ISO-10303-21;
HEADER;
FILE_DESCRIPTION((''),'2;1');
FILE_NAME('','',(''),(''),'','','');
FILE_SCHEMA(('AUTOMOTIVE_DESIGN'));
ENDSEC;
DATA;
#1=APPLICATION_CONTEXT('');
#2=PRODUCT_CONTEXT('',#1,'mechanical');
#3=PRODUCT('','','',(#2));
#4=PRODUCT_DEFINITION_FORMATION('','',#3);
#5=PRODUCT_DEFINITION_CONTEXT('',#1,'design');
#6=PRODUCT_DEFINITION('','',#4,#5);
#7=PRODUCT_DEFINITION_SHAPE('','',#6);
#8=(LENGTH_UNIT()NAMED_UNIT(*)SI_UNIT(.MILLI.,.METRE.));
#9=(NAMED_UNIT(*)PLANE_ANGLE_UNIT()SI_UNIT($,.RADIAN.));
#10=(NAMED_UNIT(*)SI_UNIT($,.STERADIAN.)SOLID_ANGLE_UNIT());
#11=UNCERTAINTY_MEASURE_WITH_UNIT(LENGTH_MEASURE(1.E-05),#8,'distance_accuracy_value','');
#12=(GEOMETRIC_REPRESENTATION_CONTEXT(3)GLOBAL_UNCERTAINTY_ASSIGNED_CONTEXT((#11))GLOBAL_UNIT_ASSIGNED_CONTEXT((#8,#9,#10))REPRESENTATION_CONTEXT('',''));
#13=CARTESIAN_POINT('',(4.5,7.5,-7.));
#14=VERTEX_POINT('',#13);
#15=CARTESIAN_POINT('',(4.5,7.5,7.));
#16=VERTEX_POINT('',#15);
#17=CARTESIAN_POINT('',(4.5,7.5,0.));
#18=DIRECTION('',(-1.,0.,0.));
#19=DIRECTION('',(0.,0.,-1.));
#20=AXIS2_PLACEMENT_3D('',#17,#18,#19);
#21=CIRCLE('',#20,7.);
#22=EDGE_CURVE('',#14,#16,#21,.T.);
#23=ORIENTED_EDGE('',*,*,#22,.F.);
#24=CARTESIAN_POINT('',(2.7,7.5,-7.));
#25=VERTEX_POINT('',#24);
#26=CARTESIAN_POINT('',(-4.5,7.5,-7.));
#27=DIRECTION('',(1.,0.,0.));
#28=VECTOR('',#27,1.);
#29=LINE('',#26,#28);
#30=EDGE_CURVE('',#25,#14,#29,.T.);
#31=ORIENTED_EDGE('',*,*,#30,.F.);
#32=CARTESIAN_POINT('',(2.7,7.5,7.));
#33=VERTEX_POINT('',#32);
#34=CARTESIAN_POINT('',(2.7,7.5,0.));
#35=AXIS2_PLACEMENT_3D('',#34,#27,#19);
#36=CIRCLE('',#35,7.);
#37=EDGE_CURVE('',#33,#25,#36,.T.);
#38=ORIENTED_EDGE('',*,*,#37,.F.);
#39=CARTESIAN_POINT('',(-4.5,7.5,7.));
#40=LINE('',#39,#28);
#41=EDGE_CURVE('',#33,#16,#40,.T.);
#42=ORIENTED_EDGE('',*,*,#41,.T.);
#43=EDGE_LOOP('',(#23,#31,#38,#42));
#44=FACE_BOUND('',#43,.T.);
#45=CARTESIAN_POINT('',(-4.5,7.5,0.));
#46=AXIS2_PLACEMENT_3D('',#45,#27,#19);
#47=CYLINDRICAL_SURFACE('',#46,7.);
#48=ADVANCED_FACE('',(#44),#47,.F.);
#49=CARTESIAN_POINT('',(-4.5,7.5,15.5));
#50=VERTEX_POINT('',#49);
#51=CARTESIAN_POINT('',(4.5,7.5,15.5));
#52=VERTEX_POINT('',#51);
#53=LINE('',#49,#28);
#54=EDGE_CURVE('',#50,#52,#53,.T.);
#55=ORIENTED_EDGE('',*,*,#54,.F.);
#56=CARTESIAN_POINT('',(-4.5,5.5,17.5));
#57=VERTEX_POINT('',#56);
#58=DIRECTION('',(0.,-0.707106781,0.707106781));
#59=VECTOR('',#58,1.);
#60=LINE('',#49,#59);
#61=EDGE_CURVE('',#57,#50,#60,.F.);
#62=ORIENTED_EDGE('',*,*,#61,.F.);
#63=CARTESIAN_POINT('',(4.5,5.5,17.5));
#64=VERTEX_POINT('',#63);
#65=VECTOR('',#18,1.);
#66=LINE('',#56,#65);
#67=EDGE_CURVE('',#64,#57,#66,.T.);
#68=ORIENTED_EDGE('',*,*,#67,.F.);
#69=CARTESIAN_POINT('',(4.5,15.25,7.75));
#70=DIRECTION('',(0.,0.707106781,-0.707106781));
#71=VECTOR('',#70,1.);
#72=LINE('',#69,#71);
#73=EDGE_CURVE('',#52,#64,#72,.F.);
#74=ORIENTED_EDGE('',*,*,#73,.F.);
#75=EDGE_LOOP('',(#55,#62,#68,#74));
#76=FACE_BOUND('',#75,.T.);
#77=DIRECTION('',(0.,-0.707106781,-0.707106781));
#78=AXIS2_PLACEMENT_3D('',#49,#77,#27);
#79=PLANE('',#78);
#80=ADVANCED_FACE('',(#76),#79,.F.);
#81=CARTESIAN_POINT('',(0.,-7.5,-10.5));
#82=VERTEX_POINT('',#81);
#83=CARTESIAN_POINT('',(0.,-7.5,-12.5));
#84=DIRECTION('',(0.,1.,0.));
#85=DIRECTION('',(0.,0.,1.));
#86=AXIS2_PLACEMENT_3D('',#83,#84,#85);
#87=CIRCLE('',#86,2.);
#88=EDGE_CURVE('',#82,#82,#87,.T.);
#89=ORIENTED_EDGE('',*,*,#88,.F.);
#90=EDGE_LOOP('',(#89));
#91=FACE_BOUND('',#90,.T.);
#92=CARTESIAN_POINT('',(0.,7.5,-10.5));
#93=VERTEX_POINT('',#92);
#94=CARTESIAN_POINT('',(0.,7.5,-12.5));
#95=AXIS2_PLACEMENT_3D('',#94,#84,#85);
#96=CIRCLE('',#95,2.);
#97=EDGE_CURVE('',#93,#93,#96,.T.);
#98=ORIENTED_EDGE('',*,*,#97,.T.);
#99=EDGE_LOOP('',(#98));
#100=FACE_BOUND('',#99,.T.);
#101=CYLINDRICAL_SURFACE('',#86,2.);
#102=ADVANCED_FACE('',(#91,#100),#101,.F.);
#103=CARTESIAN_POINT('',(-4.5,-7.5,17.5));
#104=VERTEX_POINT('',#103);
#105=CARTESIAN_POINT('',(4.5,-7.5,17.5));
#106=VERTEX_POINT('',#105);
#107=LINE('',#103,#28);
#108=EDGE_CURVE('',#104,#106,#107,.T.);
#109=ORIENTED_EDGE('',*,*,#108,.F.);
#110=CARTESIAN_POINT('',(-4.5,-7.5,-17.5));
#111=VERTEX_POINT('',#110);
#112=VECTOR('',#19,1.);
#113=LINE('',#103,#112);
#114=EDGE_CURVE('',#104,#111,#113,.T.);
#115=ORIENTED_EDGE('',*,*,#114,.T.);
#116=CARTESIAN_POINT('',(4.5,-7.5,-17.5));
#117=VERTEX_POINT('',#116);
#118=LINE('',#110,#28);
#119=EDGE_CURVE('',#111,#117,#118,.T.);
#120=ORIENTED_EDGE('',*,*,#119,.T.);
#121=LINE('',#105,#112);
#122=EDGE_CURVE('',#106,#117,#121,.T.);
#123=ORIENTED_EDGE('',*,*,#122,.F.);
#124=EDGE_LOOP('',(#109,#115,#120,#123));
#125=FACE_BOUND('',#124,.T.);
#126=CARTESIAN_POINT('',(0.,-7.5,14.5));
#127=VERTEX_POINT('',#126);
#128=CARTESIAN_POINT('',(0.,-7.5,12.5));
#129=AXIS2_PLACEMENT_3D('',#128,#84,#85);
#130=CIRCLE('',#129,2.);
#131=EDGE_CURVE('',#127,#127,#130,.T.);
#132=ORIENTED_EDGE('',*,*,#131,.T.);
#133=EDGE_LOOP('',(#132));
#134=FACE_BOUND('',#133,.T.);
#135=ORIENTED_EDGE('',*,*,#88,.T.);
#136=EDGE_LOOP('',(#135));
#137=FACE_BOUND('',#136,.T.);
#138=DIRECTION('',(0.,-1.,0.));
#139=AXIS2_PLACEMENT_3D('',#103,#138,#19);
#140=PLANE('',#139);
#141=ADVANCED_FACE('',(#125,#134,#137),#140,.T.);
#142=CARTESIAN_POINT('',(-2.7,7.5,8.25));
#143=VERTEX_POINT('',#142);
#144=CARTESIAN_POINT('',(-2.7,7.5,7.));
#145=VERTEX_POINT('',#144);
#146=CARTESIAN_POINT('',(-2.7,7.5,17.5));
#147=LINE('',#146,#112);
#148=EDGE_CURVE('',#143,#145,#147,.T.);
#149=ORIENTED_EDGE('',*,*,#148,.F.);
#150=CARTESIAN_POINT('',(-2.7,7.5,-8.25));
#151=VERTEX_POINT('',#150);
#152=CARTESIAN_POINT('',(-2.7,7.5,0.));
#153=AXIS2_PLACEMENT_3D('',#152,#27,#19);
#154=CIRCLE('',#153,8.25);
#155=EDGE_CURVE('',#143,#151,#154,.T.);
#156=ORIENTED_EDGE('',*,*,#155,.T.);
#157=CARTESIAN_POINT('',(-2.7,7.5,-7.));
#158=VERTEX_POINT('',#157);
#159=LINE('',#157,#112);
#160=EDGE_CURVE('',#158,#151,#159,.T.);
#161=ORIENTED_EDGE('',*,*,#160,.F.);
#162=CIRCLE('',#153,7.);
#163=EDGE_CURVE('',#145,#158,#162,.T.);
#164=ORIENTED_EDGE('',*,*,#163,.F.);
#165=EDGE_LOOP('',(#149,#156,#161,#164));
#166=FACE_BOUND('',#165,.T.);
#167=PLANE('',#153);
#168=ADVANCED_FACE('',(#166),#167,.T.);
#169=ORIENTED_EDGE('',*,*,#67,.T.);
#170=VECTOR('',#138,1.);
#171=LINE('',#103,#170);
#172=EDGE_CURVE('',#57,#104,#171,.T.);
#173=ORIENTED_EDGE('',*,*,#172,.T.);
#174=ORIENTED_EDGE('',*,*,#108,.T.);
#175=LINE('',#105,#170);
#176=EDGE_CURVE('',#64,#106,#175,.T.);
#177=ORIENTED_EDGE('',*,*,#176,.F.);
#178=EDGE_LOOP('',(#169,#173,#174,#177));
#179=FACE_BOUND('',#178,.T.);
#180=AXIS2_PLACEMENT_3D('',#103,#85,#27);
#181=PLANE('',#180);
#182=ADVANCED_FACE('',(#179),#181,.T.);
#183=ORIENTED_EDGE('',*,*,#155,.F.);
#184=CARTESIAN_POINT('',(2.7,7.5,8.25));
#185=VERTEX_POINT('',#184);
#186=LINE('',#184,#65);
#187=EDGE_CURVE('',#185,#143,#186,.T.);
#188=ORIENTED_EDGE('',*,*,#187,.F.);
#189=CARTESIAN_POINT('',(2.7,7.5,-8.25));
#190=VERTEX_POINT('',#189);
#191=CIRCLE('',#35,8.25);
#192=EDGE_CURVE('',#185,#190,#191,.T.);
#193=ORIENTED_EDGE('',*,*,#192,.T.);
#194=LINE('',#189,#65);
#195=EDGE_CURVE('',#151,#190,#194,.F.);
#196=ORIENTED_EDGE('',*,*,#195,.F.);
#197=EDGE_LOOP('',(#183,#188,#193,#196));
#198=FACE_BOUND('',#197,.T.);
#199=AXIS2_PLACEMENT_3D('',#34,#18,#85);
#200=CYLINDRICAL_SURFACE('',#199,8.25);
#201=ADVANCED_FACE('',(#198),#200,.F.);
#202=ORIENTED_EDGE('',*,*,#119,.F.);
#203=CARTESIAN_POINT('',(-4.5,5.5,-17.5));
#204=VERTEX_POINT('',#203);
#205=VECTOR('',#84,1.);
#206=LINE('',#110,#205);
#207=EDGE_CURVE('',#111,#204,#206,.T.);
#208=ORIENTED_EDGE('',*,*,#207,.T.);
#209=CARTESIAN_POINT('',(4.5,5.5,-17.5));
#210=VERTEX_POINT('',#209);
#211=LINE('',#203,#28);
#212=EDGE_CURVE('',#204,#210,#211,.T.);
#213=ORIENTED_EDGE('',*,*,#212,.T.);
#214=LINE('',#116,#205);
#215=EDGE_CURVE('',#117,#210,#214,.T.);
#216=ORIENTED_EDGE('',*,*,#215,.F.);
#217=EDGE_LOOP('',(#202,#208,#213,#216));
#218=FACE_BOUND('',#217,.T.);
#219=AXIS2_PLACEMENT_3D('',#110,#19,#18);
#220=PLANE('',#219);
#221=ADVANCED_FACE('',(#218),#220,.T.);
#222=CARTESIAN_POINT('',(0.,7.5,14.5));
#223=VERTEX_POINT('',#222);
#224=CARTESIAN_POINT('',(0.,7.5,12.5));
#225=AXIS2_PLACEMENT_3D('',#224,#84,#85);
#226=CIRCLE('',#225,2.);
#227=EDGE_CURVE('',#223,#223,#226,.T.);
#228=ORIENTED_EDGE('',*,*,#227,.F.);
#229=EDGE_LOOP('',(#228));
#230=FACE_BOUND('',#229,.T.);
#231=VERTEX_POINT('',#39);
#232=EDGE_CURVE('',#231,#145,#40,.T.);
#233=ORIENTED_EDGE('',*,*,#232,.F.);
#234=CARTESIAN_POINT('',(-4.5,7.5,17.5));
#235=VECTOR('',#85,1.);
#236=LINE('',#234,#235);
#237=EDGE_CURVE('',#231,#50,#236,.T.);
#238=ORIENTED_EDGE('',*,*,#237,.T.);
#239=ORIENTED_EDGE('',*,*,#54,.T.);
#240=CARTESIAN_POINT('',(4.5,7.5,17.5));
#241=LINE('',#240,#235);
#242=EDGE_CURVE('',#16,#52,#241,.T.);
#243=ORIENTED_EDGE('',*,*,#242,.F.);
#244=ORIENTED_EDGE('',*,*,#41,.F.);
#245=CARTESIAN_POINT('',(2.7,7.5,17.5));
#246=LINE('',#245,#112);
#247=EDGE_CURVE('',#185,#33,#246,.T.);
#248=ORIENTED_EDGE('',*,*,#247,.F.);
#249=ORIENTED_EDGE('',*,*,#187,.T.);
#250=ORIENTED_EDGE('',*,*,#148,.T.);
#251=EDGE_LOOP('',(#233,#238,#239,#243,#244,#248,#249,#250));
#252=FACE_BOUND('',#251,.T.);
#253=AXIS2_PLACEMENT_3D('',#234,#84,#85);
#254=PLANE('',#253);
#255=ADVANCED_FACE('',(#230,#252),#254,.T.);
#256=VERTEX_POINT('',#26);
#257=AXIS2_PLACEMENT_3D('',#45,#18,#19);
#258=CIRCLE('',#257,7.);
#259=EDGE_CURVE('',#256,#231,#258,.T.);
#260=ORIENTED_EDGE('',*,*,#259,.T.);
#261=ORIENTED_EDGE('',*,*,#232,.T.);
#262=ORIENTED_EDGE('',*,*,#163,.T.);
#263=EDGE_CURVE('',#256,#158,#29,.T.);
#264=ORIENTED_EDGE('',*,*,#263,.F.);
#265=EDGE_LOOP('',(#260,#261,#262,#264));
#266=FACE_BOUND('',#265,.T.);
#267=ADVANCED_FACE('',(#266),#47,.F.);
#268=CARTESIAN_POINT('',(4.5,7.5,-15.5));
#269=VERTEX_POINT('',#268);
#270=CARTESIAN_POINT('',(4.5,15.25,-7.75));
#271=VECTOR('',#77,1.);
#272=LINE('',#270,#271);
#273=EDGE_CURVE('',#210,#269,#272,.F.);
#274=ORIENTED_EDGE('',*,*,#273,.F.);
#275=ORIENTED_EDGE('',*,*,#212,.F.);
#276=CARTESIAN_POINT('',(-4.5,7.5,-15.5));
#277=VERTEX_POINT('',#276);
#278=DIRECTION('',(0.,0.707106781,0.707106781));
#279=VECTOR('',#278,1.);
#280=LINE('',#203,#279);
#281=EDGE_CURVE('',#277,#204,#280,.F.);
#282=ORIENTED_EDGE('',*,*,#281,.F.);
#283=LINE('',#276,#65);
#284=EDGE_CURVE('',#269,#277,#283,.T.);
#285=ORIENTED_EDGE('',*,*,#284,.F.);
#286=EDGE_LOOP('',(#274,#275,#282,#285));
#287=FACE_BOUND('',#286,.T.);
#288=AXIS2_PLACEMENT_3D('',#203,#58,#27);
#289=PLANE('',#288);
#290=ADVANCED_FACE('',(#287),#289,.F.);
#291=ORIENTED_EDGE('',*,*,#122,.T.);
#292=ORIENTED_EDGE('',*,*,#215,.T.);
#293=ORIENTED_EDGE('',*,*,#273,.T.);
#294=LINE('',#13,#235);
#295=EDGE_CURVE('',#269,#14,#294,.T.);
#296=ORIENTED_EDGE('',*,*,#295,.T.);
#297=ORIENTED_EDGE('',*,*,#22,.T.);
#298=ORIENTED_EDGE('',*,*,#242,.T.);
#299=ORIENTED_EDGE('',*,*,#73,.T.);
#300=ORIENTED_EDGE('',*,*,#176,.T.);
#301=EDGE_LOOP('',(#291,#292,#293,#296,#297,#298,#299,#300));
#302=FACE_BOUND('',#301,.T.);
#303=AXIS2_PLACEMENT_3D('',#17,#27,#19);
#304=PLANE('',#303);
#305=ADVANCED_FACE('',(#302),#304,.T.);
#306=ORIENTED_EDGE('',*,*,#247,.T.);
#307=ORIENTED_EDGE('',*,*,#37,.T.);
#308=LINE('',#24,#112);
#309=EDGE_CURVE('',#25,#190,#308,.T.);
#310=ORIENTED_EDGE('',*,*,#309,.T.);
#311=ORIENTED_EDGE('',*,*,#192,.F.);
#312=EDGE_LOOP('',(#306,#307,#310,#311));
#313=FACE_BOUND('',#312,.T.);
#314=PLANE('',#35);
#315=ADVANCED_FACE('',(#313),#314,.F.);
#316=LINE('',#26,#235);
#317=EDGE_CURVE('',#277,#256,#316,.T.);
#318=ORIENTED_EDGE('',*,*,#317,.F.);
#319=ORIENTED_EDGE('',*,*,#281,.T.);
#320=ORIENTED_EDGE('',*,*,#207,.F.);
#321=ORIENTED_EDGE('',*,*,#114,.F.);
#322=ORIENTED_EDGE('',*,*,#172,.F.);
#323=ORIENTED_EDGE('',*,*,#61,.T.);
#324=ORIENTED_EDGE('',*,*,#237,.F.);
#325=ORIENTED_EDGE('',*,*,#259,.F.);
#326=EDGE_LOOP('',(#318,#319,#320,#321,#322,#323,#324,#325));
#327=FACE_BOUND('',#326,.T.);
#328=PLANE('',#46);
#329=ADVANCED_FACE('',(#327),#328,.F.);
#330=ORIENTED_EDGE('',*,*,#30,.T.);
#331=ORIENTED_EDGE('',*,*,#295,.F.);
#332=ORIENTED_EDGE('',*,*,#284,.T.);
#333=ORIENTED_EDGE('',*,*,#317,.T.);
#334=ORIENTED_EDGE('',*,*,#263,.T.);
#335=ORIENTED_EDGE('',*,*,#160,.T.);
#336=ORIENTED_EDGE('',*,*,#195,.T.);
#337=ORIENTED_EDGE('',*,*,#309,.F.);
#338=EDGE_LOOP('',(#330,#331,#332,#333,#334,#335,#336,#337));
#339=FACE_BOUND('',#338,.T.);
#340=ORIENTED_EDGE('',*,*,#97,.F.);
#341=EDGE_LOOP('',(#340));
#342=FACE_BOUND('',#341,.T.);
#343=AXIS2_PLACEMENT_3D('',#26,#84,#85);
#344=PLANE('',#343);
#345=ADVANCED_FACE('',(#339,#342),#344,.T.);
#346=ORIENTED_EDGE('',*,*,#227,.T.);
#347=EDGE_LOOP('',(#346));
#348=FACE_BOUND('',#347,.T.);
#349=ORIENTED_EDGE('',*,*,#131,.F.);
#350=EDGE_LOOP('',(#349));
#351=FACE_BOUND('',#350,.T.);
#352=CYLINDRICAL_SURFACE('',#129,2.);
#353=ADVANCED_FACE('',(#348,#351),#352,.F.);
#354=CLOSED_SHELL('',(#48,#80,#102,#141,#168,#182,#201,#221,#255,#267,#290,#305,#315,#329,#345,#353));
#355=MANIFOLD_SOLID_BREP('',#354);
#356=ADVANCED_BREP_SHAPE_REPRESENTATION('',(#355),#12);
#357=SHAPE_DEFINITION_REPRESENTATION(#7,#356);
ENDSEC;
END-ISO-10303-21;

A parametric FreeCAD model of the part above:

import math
import FreeCAD as App
import Part
import Sketcher

V = App.Vector


def edges_at(feature, points):
    """Names of the edges that pass closest to the given points."""
    edges = feature.Shape.Edges
    near = lambda p: min(range(len(edges)), key=lambda i: edges[i].distToShape(Part.Vertex(*p))[0])
    return sorted({f"Edge{near(p) + 1}" for p in points})

doc = App.newDocument("Part")
params = doc.addObject("Spreadsheet::Sheet", "Params")
for row, (alias, value) in enumerate([
    ("sketch1_radius", "7 mm"),
    ("sketch1_width", "15 mm"),
    ("sketch1_height", "35 mm"),
    ("pad1_length", "4.5 mm"),
    ("pad1_length2", "4.5 mm"),
    ("sketch2_diameter", "16.5 mm"),
    ("pocket1_length", "2.7 mm"),
    ("pocket1_length2", "2.7 mm"),
    ("sketch3_diameter", "4 mm"),
    ("chamfer_size", "2 mm"),
], start=1):
    params.set(f"A{row}", alias)
    params.set(f"B{row}", "=" + value)
    params.setAlias(f"B{row}", alias)

body = doc.addObject("PartDesign::Body", "Body")

# Sketch on YZ plane
sketch1 = body.newObject("Sketcher::SketchObject", "Sketch")
sketch1.AttachmentSupport = (doc.getObject("YZ_Plane"), [""])
sketch1.MapMode = "FlatFace"
sketch1.addGeometry([
    Part.LineSegment(V(8, -18, 0), V(8, -7, 0)),  # 0
    Part.ArcOfCircle(Part.Circle(V(8, 0, 0), V(0, 0, 1), 7), math.radians(90), math.radians(270)),  # 1
    Part.LineSegment(V(8, 7, 0), V(8, 18, 0)),  # 2
    Part.LineSegment(V(8, 18, 0), V(-8, 18, 0)),  # 3
    Part.LineSegment(V(-8, 18, 0), V(-8, -18, 0)),  # 4
    Part.LineSegment(V(-8, -18, 0), V(8, -18, 0)),  # 5
], False)
sketch1.addConstraint([
    Sketcher.Constraint("Coincident", 0, 2, 1, 2),
    Sketcher.Constraint("Coincident", 1, 1, 2, 1),
    Sketcher.Constraint("Coincident", 2, 2, 3, 1),
    Sketcher.Constraint("Coincident", 3, 2, 4, 1),
    Sketcher.Constraint("Coincident", 4, 2, 5, 1),
    Sketcher.Constraint("Coincident", 5, 2, 0, 1),
    Sketcher.Constraint("Vertical", 0),
    Sketcher.Constraint("Vertical", 2),
    Sketcher.Constraint("Horizontal", 3),
    Sketcher.Constraint("Vertical", 4),
    Sketcher.Constraint("Horizontal", 5),
    Sketcher.Constraint("Symmetric", 2, 2, 4, 2, -1, 1),
    Sketcher.Constraint("Symmetric", 0, 2, 1, 1, -1),
    Sketcher.Constraint("Vertical", 1, 3, 0, 2),
    Sketcher.Constraint("Radius", 1, 7.0),
    Sketcher.Constraint("DistanceX", 3, 2, 3, 1, 15.0),
    Sketcher.Constraint("DistanceY", 4, 2, 4, 1, 35.0),
])
sketch1.setExpression("Constraints[14]", "Params.sketch1_radius")
sketch1.setExpression("Constraints[15]", "Params.sketch1_width")
sketch1.setExpression("Constraints[16]", "Params.sketch1_height")
pad1 = body.newObject("PartDesign::Pad", "Pad")
pad1.Profile = sketch1
pad1.Type = "TwoLengths"
pad1.setExpression("Length", "Params.pad1_length")
pad1.setExpression("Length2", "Params.pad1_length2")

# Sketch on YZ plane
sketch2 = body.newObject("Sketcher::SketchObject", "Sketch001")
sketch2.AttachmentSupport = (doc.getObject("YZ_Plane"), [""])
sketch2.MapMode = "FlatFace"
sketch2.addGeometry(Part.Circle(V(8, 0, 0), V(0, 0, 1), 8), False)
sketch2.addConstraint([
    Sketcher.Constraint("PointOnObject", 0, 3, -1),
    Sketcher.Constraint("Diameter", 0, 16.5),
    Sketcher.Constraint("DistanceX", -1, 1, 0, 3, 7.5),
])
sketch2.setExpression("Constraints[1]", "Params.sketch2_diameter")
pocket1 = body.newObject("PartDesign::Pocket", "Pocket")
pocket1.Profile = sketch2
pocket1.Type = "TwoLengths"
pocket1.setExpression("Length", "Params.pocket1_length")
pocket1.setExpression("Length2", "Params.pocket1_length2")
pocket1.Reversed = True

# Sketch on XZ plane
sketch3 = body.newObject("Sketcher::SketchObject", "Sketch002")
sketch3.AttachmentSupport = (doc.getObject("XZ_Plane"), [""])
sketch3.MapMode = "FlatFace"
sketch3.AttachmentOffset = App.Placement(V(0, 0, -7.5), App.Rotation())
sketch3.addGeometry([
    Part.Circle(V(0, -12.5, 0), V(0, 0, 1), 2),
    Part.Circle(V(0, 12.5, 0), V(0, 0, 1), 2),
], False)
sketch3.addConstraint([
    Sketcher.Constraint("Equal", 0, 1),
    Sketcher.Constraint("Symmetric", 0, 3, 1, 3, -1, 1),
    Sketcher.Constraint("PointOnObject", 0, 3, -2),
    Sketcher.Constraint("Diameter", 0, 4.0),
    Sketcher.Constraint("DistanceY", 0, 3, 1, 3, 25.0),
])
sketch3.setExpression("Constraints[3]", "Params.sketch3_diameter")
pocket2 = body.newObject("PartDesign::Pocket", "Pocket001")
pocket2.Profile = sketch3
pocket2.Type = "ThroughAll"
pocket2.Reversed = True
doc.recompute()

chamfer = body.newObject("PartDesign::Chamfer", "Chamfer")
chamfer.Base = (pocket2, edges_at(pocket2, [(0, 7.5, 17.5), (0, 7.5, -17.5)]))
chamfer.setExpression("Size", "Params.chamfer_size")

doc.recompute()
